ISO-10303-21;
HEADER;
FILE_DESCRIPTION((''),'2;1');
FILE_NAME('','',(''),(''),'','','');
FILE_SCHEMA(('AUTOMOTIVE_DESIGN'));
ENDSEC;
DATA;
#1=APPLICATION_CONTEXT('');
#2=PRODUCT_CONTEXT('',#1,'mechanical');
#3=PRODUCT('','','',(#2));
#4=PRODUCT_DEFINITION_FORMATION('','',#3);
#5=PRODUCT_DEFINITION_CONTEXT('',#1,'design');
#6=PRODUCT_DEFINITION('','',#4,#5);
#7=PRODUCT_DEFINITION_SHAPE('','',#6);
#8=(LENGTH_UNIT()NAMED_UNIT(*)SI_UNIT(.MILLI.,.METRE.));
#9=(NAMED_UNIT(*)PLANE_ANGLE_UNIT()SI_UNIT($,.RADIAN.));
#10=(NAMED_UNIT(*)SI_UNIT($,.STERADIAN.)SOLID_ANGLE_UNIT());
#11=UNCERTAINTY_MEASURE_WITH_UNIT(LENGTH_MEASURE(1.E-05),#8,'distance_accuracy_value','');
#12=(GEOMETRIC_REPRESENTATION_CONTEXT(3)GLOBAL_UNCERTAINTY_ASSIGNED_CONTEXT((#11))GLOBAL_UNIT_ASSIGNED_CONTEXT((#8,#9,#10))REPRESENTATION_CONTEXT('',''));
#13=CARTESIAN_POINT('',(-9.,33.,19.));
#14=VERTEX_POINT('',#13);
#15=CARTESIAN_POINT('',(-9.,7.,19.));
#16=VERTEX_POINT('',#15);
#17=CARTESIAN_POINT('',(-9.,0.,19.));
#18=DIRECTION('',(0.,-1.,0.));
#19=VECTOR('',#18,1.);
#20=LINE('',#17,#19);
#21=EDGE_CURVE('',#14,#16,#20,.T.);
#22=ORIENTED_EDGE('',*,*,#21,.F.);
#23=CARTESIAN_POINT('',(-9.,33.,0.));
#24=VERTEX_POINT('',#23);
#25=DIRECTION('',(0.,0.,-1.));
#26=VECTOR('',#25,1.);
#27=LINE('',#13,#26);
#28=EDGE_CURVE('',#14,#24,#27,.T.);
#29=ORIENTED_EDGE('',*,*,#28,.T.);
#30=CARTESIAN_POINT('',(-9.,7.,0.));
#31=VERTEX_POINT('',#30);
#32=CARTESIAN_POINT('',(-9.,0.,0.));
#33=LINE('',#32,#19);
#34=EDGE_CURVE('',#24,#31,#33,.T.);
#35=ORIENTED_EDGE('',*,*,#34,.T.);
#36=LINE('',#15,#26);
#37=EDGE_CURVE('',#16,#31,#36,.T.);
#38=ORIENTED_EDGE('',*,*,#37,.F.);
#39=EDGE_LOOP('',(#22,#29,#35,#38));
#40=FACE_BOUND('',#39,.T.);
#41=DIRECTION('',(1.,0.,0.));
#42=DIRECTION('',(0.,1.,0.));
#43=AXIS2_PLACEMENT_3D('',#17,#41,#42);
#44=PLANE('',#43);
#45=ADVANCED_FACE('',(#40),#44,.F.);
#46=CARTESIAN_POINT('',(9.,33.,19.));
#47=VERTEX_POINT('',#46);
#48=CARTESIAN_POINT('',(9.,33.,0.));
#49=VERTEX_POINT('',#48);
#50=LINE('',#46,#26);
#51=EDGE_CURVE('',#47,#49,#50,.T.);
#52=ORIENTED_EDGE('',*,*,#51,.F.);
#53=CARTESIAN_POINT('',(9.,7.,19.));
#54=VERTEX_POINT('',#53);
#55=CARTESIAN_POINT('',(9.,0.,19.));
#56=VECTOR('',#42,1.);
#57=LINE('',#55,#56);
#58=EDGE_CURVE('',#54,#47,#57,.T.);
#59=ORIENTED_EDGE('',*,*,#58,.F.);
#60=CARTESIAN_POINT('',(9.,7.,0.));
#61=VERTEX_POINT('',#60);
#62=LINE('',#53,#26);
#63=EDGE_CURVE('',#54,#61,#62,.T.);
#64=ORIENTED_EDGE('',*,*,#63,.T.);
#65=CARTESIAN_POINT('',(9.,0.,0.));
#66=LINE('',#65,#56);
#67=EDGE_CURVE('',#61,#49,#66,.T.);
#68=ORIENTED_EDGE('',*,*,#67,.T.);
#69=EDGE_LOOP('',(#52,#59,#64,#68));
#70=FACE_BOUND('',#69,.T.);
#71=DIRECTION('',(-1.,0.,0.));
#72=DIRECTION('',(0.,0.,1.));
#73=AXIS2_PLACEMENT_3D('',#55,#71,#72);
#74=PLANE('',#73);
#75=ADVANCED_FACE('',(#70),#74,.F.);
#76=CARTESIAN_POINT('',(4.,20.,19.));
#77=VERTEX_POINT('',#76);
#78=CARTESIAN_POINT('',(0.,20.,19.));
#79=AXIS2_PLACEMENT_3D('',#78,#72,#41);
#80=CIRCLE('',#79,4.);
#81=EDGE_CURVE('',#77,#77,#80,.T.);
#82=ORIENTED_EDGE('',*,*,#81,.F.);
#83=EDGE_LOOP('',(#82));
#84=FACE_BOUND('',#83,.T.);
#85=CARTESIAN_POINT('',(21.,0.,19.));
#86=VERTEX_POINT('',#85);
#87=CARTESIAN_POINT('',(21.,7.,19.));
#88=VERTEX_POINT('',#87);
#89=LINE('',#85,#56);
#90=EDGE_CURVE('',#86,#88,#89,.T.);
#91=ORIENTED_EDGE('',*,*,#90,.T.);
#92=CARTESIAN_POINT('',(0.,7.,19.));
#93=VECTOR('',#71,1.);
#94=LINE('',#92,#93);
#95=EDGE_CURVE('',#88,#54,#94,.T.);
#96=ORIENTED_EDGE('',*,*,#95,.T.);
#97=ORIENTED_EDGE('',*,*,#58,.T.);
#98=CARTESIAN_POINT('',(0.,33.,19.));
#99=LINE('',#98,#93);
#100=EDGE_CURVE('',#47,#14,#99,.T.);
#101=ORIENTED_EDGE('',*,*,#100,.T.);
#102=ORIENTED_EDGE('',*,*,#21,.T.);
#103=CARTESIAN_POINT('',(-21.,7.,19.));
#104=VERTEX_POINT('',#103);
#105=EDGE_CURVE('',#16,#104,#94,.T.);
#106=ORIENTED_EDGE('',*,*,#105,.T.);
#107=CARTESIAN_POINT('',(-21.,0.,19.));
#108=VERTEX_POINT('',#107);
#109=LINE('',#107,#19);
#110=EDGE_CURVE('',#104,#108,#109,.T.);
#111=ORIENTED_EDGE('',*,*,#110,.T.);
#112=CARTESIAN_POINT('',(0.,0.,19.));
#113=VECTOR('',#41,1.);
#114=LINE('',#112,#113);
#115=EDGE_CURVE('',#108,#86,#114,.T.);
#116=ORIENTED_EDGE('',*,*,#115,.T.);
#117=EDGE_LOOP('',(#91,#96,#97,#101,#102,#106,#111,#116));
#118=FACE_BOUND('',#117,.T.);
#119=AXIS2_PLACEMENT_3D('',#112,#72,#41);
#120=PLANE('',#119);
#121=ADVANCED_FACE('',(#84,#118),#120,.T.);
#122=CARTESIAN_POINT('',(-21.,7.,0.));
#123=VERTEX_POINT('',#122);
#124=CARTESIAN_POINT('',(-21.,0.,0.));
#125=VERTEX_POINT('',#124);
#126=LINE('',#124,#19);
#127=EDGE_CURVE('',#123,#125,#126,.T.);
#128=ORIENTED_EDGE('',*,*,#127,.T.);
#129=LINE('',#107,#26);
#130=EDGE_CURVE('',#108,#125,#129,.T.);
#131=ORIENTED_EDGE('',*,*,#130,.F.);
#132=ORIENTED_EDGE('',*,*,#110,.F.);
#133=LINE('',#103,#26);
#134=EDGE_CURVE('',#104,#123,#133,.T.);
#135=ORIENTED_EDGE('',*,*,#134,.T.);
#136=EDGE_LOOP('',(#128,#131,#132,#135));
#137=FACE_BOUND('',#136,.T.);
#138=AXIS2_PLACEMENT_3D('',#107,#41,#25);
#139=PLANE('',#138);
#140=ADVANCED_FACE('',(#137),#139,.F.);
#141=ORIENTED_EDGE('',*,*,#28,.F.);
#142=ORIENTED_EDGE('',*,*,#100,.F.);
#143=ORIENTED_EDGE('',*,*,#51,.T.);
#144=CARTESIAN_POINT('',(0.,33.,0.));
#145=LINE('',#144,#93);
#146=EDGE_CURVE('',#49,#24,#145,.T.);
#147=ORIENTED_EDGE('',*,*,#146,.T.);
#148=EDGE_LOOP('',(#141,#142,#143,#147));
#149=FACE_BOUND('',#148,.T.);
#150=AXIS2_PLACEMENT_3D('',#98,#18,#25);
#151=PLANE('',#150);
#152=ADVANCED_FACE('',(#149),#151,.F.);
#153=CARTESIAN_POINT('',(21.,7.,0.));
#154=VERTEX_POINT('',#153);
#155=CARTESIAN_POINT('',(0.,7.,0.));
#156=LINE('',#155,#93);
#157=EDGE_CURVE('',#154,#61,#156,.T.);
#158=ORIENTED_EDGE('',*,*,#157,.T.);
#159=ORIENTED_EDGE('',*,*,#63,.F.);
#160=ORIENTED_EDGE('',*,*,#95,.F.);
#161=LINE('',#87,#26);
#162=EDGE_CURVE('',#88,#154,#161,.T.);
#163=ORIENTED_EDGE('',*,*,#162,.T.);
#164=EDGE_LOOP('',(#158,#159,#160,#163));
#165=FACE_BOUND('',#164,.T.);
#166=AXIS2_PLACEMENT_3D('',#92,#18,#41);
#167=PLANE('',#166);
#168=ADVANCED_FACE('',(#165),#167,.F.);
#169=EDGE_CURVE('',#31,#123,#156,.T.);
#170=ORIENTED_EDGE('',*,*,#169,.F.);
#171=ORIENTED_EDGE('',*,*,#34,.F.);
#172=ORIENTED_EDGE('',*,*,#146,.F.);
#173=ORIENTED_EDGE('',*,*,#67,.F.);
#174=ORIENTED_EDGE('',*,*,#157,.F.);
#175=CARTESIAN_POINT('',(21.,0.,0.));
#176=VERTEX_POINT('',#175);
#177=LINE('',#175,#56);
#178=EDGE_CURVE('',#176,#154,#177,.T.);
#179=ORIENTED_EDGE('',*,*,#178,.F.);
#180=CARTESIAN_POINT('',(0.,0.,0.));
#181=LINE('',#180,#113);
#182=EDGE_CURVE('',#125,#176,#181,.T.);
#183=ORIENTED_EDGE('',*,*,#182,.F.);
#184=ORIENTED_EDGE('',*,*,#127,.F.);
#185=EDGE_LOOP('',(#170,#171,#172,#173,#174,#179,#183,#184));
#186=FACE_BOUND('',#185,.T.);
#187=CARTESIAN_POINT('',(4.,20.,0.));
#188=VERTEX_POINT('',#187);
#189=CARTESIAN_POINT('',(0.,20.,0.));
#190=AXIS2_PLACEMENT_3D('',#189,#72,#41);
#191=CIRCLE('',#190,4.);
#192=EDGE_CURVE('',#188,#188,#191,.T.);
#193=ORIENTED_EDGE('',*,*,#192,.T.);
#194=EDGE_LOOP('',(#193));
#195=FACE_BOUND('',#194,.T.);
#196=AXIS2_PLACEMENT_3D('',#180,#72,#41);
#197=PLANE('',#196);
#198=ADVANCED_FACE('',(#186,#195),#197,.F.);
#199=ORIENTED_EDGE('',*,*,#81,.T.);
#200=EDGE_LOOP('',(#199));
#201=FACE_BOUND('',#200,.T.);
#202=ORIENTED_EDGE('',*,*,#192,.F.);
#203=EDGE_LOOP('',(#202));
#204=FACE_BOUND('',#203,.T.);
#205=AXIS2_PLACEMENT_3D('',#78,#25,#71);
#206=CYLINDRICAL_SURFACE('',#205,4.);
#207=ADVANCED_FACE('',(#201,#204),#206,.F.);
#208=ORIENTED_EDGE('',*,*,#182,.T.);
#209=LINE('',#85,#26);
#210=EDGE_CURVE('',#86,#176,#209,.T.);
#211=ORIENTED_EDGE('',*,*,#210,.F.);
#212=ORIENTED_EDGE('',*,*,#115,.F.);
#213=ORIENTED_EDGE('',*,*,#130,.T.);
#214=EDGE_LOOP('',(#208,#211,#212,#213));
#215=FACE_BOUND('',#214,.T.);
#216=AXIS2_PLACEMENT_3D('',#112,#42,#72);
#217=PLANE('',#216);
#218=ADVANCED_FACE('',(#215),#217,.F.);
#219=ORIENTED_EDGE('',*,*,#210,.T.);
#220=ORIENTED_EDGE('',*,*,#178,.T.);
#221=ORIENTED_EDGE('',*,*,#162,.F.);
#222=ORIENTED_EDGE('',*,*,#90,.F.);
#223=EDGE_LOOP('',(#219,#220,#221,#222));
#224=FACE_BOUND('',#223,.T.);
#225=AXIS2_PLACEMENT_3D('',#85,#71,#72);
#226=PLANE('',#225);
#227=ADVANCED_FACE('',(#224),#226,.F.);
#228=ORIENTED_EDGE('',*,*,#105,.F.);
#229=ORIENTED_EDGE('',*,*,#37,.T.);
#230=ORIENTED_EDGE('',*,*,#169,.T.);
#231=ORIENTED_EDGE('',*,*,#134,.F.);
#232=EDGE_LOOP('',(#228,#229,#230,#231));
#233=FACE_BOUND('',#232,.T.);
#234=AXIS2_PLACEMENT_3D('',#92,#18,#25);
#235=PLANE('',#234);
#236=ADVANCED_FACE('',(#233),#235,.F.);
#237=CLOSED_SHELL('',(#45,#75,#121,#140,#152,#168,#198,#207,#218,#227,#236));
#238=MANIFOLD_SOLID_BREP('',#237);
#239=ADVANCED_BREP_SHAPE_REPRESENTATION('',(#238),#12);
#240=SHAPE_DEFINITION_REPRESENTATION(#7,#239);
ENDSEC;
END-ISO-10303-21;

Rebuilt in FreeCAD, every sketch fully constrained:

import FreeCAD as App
import Part
import Sketcher

V = App.Vector
Q = App.Units.Quantity

doc = App.newDocument("Part")
body = doc.addObject("PartDesign::Body", "Body")

# Sketch on XY plane
sketch1 = body.newObject("Sketcher::SketchObject", "Sketch")
sketch1.AttachmentSupport = (doc.getObject("XY_Plane"), [""])
sketch1.MapMode = "FlatFace"
sketch1.addGeometry([
    Part.LineSegment(V(-21, 0, 0), V(21, 0, 0)),  # 0
    Part.LineSegment(V(21, 0, 0), V(21, 7, 0)),  # 1
    Part.LineSegment(V(21, 7, 0), V(9, 7, 0)),  # 2
    Part.LineSegment(V(9, 7, 0), V(9, 33, 0)),  # 3
    Part.LineSegment(V(9, 33, 0), V(-9, 33, 0)),  # 4
    Part.LineSegment(V(-9, 33, 0), V(-9, 7, 0)),  # 5
    Part.LineSegment(V(-9, 7, 0), V(-21, 7, 0)),  # 6
    Part.LineSegment(V(-21, 7, 0), V(-21, 0, 0)),  # 7
    Part.Circle(V(0, 20, 0), V(0, 0, 1), 4),  # 8
], False)
sketch1.addConstraint([
    Sketcher.Constraint("Coincident", 0, 2, 1, 1),
    Sketcher.Constraint("Coincident", 1, 2, 2, 1),
    Sketcher.Constraint("Coincident", 2, 2, 3, 1),
    Sketcher.Constraint("Coincident", 3, 2, 4, 1),
    Sketcher.Constraint("Coincident", 4, 2, 5, 1),
    Sketcher.Constraint("Coincident", 5, 2, 6, 1),
    Sketcher.Constraint("Coincident", 6, 2, 7, 1),
    Sketcher.Constraint("Coincident", 7, 2, 0, 1),
    Sketcher.Constraint("Horizontal", 0),
    Sketcher.Constraint("Vertical", 1),
    Sketcher.Constraint("Horizontal", 2),
    Sketcher.Constraint("Vertical", 3),
    Sketcher.Constraint("Horizontal", 4),
    Sketcher.Constraint("Vertical", 5),
    Sketcher.Constraint("Horizontal", 6),
    Sketcher.Constraint("Vertical", 7),
    Sketcher.Constraint("Symmetric", 0, 2, 7, 2, -1, 1),
    Sketcher.Constraint("Symmetric", 2, 2, 5, 2, -2),
    Sketcher.Constraint("PointOnObject", 8, 3, -2),
    Sketcher.Constraint("Diameter", 8, Q("8 mm")),
    Sketcher.Constraint("DistanceX", 0, 1, 0, 2, Q("42 mm")),
    Sketcher.Constraint("DistanceX", 2, 2, 2, 1, Q("12 mm")),
    Sketcher.Constraint("DistanceY", 1, 1, 1, 2, Q("7 mm")),
    Sketcher.Constraint("DistanceY", 3, 1, 3, 2, Q("26 mm")),
    Sketcher.Constraint("DistanceY", -1, 1, 8, 3, Q("20 mm")),
])
pad1 = body.newObject("PartDesign::Pad", "Pad")
pad1.Profile = sketch1
pad1.Length = 19

doc.recompute()
